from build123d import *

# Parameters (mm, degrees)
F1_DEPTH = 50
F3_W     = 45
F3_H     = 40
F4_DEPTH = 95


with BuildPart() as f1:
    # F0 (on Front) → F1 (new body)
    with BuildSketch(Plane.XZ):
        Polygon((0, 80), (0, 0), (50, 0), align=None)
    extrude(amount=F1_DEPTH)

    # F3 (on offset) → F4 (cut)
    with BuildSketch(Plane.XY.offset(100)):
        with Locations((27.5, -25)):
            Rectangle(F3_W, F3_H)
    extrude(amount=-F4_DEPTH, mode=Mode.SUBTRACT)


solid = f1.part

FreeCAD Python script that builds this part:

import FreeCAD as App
import Part
import Sketcher

V = App.Vector
Q = App.Units.Quantity

doc = App.newDocument("Part")
body = doc.addObject("PartDesign::Body", "Body")

# Sketch on XZ plane
sketch1 = body.newObject("Sketcher::SketchObject", "Sketch")
sketch1.AttachmentSupport = (doc.getObject("XZ_Plane"), [""])
sketch1.MapMode = "FlatFace"
sketch1.addGeometry(Part.LineSegment(V(0, 80, 0), V(0, 0, 0)), False)
sketch1.addGeometry(Part.LineSegment(V(0, 0, 0), V(50, 0, 0)), False)
sketch1.addGeometry(Part.LineSegment(V(50, 0, 0), V(0, 80, 0)), False)
sketch1.addConstraint(Sketcher.Constraint("Coincident", 0, 2, 1, 1))
sketch1.addConstraint(Sketcher.Constraint("Coincident", 1, 2, 2, 1))
sketch1.addConstraint(Sketcher.Constraint("Coincident", 2, 2, 0, 1))
sketch1.addConstraint(Sketcher.Constraint("Vertical", 0))
sketch1.addConstraint(Sketcher.Constraint("Horizontal", 1))
sketch1.addConstraint(Sketcher.Constraint("Coincident", 0, 2, -1, 1))
sketch1.addConstraint(Sketcher.Constraint("DistanceX", 1, 1, 1, 2, Q("50 mm")))
sketch1.addConstraint(Sketcher.Constraint("DistanceY", 0, 2, 0, 1, Q("80 mm")))
pad1 = body.newObject("PartDesign::Pad", "Pad")
pad1.Profile = sketch1
pad1.Length = 50

# Sketch on XY plane
sketch2 = body.newObject("Sketcher::SketchObject", "Sketch001")
sketch2.AttachmentSupport = (doc.getObject("XY_Plane"), [""])
sketch2.MapMode = "FlatFace"
sketch2.AttachmentOffset = App.Placement(V(0, 0, 100), App.Rotation())
sketch2.addGeometry(Part.LineSegment(V(5, -5, 0), V(5, -45, 0)), False)
sketch2.addGeometry(Part.LineSegment(V(5, -45, 0), V(50, -45, 0)), False)
sketch2.addGeometry(Part.LineSegment(V(50, -45, 0), V(50, -5, 0)), False)
sketch2.addGeometry(Part.LineSegment(V(50, -5, 0), V(5, -5, 0)), False)
sketch2.addConstraint(Sketcher.Constraint("Coincident", 0, 2, 1, 1))
sketch2.addConstraint(Sketcher.Constraint("Coincident", 1, 2, 2, 1))
sketch2.addConstraint(Sketcher.Constraint("Coincident", 2, 2, 3, 1))
sketch2.addConstraint(Sketcher.Constraint("Coincident", 3, 2, 0, 1))
sketch2.addConstraint(Sketcher.Constraint("Vertical", 0))
sketch2.addConstraint(Sketcher.Constraint("Horizontal", 1))
sketch2.addConstraint(Sketcher.Constraint("Vertical", 2))
sketch2.addConstraint(Sketcher.Constraint("Horizontal", 3))
sketch2.addConstraint(Sketcher.Constraint("DistanceX", 1, 1, 1, 2, Q("45 mm")))
sketch2.addConstraint(Sketcher.Constraint("DistanceY", 0, 2, 0, 1, Q("40 mm")))
sketch2.addConstraint(Sketcher.Constraint("DistanceX", -1, 1, 0, 2, Q("5 mm")))
sketch2.addConstraint(Sketcher.Constraint("DistanceY", 0, 2, -1, 1, Q("45 mm")))
pocket1 = body.newObject("PartDesign::Pocket", "Pocket")
pocket1.Profile = sketch2
pocket1.Length = 95

doc.recompute()
